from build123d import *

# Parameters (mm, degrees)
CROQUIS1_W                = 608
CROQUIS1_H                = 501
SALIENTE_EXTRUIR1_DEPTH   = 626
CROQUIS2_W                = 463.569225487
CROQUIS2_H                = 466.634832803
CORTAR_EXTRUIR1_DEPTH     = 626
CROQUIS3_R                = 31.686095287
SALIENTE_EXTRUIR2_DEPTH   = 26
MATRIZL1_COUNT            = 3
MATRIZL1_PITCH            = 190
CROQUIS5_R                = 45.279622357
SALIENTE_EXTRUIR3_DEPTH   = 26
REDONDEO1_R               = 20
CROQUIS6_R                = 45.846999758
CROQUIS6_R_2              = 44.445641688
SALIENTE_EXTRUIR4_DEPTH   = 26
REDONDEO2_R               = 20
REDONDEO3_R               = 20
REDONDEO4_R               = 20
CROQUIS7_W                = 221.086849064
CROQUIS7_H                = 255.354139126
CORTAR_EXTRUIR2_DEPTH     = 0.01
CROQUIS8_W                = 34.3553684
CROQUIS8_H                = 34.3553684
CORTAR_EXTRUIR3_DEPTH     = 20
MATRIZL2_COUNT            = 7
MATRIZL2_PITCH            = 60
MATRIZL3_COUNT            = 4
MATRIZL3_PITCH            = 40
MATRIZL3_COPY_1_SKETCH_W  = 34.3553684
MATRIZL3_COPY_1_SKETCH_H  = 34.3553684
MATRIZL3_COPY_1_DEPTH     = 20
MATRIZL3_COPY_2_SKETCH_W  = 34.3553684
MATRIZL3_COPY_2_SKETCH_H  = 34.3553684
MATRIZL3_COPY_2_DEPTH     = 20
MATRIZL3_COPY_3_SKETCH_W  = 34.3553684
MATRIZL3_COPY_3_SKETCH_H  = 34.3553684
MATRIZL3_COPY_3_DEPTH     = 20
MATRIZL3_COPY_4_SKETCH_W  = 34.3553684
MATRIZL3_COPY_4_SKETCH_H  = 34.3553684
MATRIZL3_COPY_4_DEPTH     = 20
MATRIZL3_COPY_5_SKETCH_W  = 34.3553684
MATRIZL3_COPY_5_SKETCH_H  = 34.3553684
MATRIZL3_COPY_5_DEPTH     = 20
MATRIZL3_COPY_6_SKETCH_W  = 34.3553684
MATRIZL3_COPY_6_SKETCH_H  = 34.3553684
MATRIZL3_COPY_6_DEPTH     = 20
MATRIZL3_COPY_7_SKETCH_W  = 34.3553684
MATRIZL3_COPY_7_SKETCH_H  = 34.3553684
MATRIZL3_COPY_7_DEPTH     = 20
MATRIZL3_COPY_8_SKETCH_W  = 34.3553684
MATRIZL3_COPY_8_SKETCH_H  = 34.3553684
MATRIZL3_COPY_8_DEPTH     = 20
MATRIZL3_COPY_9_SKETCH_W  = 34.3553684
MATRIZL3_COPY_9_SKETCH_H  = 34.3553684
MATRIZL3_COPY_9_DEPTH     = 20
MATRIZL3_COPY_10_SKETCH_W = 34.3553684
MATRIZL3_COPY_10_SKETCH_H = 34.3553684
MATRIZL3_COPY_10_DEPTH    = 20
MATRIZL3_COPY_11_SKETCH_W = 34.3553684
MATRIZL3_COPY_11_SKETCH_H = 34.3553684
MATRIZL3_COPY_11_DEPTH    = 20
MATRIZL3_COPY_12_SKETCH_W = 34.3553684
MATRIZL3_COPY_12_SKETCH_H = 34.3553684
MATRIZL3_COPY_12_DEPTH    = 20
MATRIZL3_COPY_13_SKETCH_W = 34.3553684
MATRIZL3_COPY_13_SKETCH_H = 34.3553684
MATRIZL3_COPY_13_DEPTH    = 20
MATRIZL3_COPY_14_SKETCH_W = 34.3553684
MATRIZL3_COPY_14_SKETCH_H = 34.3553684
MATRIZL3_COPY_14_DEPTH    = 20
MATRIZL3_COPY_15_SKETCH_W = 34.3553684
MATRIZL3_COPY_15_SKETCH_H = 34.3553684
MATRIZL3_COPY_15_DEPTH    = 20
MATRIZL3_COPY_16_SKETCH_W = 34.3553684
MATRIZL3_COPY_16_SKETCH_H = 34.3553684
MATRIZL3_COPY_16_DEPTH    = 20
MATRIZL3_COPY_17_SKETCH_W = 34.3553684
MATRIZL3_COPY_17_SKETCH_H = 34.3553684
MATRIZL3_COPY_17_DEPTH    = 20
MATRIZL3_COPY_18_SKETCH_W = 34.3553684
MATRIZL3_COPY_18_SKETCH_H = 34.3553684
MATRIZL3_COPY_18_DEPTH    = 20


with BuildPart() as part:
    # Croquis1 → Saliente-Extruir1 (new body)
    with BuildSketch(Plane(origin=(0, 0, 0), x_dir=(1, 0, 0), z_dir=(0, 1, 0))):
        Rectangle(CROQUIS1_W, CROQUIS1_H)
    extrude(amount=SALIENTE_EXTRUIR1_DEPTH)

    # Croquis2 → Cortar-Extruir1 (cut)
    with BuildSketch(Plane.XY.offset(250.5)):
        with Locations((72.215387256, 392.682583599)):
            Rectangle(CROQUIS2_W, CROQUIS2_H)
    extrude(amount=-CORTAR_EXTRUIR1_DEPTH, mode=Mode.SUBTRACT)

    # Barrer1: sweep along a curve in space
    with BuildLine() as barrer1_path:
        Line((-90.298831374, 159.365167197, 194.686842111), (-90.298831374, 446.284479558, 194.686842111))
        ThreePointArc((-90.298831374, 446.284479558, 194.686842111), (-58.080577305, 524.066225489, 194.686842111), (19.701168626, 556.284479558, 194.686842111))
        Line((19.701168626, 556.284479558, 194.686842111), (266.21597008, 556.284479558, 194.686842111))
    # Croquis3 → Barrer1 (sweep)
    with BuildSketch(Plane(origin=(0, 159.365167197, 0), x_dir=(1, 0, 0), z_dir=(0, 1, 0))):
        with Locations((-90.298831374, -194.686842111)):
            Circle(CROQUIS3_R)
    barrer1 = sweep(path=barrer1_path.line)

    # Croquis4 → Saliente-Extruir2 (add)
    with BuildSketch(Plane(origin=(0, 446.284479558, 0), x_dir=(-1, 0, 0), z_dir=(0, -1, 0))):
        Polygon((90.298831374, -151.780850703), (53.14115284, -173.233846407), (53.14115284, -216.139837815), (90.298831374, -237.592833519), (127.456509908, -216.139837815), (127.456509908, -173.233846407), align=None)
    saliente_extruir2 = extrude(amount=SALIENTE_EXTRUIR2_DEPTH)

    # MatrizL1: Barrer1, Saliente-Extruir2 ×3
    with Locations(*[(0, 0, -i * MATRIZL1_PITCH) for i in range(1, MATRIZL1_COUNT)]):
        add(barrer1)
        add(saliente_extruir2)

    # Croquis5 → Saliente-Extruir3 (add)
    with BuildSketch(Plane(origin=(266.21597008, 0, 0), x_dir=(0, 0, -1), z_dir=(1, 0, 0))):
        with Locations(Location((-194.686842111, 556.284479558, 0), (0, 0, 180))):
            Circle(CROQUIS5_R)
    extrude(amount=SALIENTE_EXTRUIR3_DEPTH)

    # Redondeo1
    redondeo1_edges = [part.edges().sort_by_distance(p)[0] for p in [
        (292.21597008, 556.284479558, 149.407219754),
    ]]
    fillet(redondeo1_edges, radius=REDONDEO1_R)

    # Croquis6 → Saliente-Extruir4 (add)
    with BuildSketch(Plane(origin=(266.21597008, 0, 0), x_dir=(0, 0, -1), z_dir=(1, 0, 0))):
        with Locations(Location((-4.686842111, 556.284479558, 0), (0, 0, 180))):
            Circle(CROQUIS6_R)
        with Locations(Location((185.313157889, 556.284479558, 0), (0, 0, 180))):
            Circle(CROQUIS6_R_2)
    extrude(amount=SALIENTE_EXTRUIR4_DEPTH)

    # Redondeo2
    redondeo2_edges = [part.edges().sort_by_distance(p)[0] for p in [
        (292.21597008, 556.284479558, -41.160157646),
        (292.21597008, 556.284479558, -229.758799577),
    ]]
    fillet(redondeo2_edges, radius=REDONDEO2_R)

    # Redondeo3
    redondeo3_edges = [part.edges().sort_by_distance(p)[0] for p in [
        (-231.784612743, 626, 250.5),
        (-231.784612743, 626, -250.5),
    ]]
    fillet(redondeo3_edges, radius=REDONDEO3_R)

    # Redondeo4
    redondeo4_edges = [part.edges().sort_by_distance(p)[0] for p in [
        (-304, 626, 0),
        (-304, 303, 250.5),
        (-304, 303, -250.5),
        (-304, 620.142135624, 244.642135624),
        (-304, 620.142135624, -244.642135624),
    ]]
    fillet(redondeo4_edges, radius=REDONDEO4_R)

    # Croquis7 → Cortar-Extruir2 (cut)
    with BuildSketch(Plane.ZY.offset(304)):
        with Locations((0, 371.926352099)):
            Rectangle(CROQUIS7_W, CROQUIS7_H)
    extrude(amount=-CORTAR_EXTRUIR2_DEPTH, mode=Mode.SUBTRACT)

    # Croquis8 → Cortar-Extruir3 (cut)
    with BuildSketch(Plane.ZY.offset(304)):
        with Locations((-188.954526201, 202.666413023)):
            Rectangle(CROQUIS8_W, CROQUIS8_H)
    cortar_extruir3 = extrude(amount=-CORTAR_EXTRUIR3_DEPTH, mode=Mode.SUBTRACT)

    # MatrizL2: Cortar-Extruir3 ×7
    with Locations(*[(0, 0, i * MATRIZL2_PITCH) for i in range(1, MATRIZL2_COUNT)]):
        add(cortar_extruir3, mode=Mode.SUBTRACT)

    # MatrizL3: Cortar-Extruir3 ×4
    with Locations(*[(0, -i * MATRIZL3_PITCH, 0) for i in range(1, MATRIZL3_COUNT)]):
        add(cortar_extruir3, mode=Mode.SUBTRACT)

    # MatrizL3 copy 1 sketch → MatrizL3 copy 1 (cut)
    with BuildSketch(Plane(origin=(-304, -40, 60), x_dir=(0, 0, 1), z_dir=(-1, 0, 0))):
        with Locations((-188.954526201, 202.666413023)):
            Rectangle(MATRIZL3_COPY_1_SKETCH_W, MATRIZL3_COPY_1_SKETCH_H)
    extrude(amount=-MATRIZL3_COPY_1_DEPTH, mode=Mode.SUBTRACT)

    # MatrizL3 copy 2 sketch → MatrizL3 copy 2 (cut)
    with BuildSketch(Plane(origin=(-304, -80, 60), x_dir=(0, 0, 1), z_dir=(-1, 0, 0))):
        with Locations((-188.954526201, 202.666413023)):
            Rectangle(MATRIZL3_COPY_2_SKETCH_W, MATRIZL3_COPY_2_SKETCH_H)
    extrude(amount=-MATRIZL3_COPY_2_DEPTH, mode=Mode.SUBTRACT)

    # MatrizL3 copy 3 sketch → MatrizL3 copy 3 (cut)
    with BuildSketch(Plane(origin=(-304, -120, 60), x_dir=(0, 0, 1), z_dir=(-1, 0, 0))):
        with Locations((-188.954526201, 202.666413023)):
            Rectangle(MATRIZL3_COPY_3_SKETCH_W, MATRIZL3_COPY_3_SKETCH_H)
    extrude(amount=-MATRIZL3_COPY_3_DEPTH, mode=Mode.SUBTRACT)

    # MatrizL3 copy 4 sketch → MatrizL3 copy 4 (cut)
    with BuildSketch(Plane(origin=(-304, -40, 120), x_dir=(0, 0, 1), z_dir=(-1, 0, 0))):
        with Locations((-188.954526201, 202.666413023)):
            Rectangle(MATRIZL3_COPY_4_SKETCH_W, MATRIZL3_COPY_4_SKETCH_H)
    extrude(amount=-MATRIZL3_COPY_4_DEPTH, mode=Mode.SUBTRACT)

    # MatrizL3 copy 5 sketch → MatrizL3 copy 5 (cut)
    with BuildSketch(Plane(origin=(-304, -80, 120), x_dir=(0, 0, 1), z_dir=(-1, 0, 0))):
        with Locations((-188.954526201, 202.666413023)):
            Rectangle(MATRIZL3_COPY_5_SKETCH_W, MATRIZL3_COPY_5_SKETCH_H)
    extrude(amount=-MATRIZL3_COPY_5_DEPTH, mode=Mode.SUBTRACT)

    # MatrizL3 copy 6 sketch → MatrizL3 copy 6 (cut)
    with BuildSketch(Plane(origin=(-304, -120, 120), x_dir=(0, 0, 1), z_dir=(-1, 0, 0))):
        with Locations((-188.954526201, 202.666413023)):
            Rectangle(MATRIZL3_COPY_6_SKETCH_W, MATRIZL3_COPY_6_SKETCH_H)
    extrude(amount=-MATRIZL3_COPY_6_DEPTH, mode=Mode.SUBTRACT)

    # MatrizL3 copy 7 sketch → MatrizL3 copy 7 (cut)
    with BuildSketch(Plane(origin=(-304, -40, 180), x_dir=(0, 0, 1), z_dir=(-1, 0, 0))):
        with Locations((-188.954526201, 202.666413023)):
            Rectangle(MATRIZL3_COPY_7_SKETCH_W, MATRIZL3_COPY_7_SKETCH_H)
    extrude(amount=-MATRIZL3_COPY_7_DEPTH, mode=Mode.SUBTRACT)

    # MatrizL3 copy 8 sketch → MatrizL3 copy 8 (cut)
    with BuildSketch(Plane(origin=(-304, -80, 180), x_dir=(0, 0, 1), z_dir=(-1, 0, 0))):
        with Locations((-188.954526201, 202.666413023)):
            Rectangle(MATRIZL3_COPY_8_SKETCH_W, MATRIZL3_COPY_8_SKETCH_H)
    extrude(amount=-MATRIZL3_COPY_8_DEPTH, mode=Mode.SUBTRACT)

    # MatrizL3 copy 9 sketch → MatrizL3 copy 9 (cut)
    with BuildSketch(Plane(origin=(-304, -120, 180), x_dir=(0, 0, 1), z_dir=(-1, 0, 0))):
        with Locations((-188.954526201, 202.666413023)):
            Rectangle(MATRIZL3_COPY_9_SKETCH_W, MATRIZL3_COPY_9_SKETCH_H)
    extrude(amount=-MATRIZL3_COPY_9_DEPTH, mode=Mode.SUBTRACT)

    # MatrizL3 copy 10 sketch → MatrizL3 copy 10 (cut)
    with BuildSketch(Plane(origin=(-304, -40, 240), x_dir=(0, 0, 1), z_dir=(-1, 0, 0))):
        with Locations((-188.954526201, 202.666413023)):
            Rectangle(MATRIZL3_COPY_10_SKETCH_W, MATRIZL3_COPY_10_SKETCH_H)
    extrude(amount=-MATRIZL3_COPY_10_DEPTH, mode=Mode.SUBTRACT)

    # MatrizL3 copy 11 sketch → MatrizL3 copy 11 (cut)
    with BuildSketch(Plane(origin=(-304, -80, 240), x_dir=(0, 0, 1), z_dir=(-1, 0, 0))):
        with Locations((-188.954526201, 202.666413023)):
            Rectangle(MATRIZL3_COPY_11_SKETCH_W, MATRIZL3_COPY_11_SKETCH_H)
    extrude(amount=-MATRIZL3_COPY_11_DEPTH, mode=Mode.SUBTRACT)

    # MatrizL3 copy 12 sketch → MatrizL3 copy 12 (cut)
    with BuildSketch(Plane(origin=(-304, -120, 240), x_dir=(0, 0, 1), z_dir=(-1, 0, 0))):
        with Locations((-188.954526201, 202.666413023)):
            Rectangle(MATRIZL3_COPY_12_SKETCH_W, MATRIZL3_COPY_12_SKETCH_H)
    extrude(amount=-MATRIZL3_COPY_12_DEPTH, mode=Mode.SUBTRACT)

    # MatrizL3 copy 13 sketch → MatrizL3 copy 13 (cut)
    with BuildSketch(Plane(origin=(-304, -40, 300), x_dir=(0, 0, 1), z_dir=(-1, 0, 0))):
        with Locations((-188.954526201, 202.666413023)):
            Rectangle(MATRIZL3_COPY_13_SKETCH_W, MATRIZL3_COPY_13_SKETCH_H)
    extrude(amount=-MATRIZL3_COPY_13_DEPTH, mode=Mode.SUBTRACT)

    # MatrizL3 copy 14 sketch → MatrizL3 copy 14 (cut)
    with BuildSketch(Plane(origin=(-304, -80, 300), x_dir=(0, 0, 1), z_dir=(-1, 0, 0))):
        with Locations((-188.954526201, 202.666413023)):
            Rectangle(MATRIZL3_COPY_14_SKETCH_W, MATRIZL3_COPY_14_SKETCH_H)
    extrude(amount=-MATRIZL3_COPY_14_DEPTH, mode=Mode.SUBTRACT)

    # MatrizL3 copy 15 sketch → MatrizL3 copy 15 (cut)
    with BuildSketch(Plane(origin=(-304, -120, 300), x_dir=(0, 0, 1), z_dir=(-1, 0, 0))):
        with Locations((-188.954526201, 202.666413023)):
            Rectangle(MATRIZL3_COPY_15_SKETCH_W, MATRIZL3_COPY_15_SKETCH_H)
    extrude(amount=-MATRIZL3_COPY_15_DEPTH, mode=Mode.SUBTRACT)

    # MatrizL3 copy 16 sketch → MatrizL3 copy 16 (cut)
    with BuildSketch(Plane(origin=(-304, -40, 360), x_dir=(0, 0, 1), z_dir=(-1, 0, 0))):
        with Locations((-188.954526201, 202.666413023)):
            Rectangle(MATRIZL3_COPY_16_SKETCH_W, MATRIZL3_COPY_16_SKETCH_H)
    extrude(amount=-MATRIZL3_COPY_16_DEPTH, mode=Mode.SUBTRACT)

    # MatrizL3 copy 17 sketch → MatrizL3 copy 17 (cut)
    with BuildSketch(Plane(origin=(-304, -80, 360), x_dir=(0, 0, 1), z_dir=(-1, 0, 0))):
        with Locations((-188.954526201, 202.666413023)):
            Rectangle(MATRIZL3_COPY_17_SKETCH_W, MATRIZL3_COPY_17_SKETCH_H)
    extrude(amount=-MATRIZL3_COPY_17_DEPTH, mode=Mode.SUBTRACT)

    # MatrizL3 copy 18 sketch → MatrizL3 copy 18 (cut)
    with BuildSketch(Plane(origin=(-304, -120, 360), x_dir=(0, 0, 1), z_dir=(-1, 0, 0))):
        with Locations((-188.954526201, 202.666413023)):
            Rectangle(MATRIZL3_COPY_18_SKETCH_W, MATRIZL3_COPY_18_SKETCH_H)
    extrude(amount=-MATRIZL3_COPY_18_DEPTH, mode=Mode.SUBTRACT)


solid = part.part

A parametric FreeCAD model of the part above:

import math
import FreeCAD as App
import Part
import Sketcher
from FreeCAD import Vector
Q = App.Units.Quantity


def edges_at(feature, points):
    """Names of the edges that pass closest to the given points."""
    edges = feature.Shape.Edges
    near = lambda p: min(range(len(edges)), key=lambda i: edges[i].distToShape(Part.Vertex(*p))[0])
    return sorted({f"Edge{near(p) + 1}" for p in points})


def add_polygon(sketch, points):
    """Adds a closed chain of lines whose ends are joined by coincident constraints."""
    first, n = sketch.GeometryCount, len(points)
    for a, b in zip(points, points[1:] + points[:1]):
        sketch.addGeometry(Part.LineSegment(App.Vector(*a, 0), App.Vector(*b, 0)), False)
    for i in range(n):
        sketch.addConstraint(Sketcher.Constraint("Coincident", first + i, 2, first + (i + 1) % n, 1))

doc = App.newDocument("Part")
body = doc.addObject("PartDesign::Body", "Body")

# Sketch on XZ plane
sketch1 = body.newObject("Sketcher::SketchObject", "Sketch")
sketch1.AttachmentSupport = (doc.getObject("XZ_Plane"), [""])
sketch1.MapMode = "FlatFace"
add_polygon(sketch1, [(-304, -250), (-304, 250), (304, 250), (304, -250)])  # lines 0-3
sketch1.addConstraint([
    Sketcher.Constraint("Vertical", 0),
    Sketcher.Constraint("Horizontal", 1),
    Sketcher.Constraint("Vertical", 2),
    Sketcher.Constraint("Horizontal", 3),
    Sketcher.Constraint("Symmetric", 0, 2, 2, 2, -1, 1),
    Sketcher.Constraint("DistanceX", 1, 1, 1, 2, 608.0),
    Sketcher.Constraint("DistanceY", 0, 1, 0, 2, 501.0),
])
pad1 = body.newObject("PartDesign::Pad", "Pad")
pad1.Profile = sketch1
pad1.Length = 626
pad1.Reversed = True

# Sketch on XY plane
sketch2 = body.newObject("Sketcher::SketchObject", "Sketch001")
sketch2.AttachmentSupport = (doc.getObject("XY_Plane"), [""])
sketch2.MapMode = "FlatFace"
sketch2.AttachmentOffset = App.Placement(Vector(0, 0, 250.5), App.Rotation())
add_polygon(sketch2, [(-160, 626), (-160, 159), (304, 159), (304, 626)])  # lines 0-3
sketch2.addConstraint([
    Sketcher.Constraint("Vertical", 0),
    Sketcher.Constraint("Horizontal", 1),
    Sketcher.Constraint("Vertical", 2),
    Sketcher.Constraint("Horizontal", 3),
    Sketcher.Constraint("DistanceX", -1, 1, 1, 2, 304.0),
    Sketcher.Constraint("DistanceY", -1, 1, 2, 2, 626.0),
    Sketcher.Constraint("DistanceX", 1, 1, 1, 2, 463.569225),
    Sketcher.Constraint("DistanceY", 0, 2, 0, 1, 466.634833),
])
pocket1 = body.newObject("PartDesign::Pocket", "Pocket")
pocket1.Profile = sketch2
pocket1.Length = 626

# Sketch on XZ plane
sketch3 = body.newObject("Sketcher::SketchObject", "Sketch002")
sketch3.AttachmentSupport = (doc.getObject("XZ_Plane"), [""])
sketch3.MapMode = "FlatFace"
sketch3.AttachmentOffset = App.Placement(Vector(0, 0, -159.365167), App.Rotation())
sketch3.addGeometry(Part.Circle(Vector(-90, 195, 0), Vector(0, 0, 1), 32), False)
sketch3.addConstraint([
    Sketcher.Constraint("Diameter", 0, 63.372191),
    Sketcher.Constraint("DistanceX", 0, 3, -1, 1, 90.298831),
    Sketcher.Constraint("DistanceY", -1, 1, 0, 3, 194.686842),
])

# Sketch on XY plane
sketch4 = body.newObject("Sketcher::SketchObject", "Sketch003")
sketch4.AttachmentSupport = (doc.getObject("XY_Plane"), [""])
sketch4.MapMode = "FlatFace"
sketch4.AttachmentOffset = App.Placement(Vector(0, 0, 194.686842), App.Rotation())
sketch4.addGeometry([
    Part.LineSegment(Vector(-90, 159, 0), Vector(-90, 446, 0)),
    Part.ArcOfCircle(Part.Circle(Vector(20, 446, 0), Vector(0, 0, 1), 110), math.radians(90), math.radians(180)),
    Part.LineSegment(Vector(20, 556, 0), Vector(266, 556, 0)),
], False)
sketch4.addConstraint([
    Sketcher.Constraint("Tangent", 0, 2, 1, 2),
    Sketcher.Constraint("Tangent", 1, 1, 2, 1),
    Sketcher.Constraint("Vertical", 0),
    Sketcher.Constraint("Horizontal", 2),
    Sketcher.Constraint("Radius", 1, 110.0),
    Sketcher.Constraint("DistanceX", 2, 1, 2, 2, 246.514801),
    Sketcher.Constraint("DistanceY", 0, 1, 0, 2, 286.919312),
    Sketcher.Constraint("DistanceX", -1, 1, 1, 3, 19.701169),
    Sketcher.Constraint("DistanceY", -1, 1, 1, 3, 446.28448),
])
doc.recompute()

additivepipe = body.newObject("PartDesign::AdditivePipe", "AdditivePipe")
additivepipe.Profile = sketch3
additivepipe.Spine = (sketch4, ["Edge1", "Edge2", "Edge3"])

# Sketch on XZ plane
sketch5 = body.newObject("Sketcher::SketchObject", "Sketch004")
sketch5.AttachmentSupport = (doc.getObject("XZ_Plane"), [""])
sketch5.MapMode = "FlatFace"
sketch5.AttachmentOffset = App.Placement(Vector(0, 0, -446.28448), App.Rotation())
add_polygon(sketch5, [(-90, 152), (-53, 173), (-53, 216), (-90, 238), (-127, 216), (-127, 173)])  # lines 0-5
sketch5.addConstraint([
    Sketcher.Constraint("Vertical", 1),
    Sketcher.Constraint("Vertical", 4),
    Sketcher.Constraint("Parallel", 0, 3),
    Sketcher.Constraint("Parallel", 2, 5),
    Sketcher.Constraint("Horizontal", 1, 2, 3, 2),
    Sketcher.Constraint("Horizontal", 0, 2, 4, 2),
    Sketcher.Constraint("Vertical", 2, 2, 5, 2),
    Sketcher.Constraint("Angle", 0, Q("30 deg")),
    Sketcher.Constraint("DistanceY", 1, 1, 1, 2, 42.905991),
    Sketcher.Constraint("Distance", 0, 42.905991),
    Sketcher.Constraint("DistanceX", 2, 2, -1, 1, 90.298831),
    Sketcher.Constraint("DistanceY", -1, 1, 5, 2, 151.780851),
])
pad2 = body.newObject("PartDesign::Pad", "Pad001")
pad2.Profile = sketch5
pad2.Length = 26
doc.recompute()

linearpattern = body.newObject("PartDesign::LinearPattern", "LinearPattern")
linearpattern.Originals = [additivepipe, pad2]
linearpattern.Direction = (doc.getObject("Z_Axis"), [""])
linearpattern.Mode = "offset"
linearpattern.Offset = 190
linearpattern.Occurrences = 3
linearpattern.Reversed = True
body.Tip = linearpattern

# Sketch on YZ plane
sketch6 = body.newObject("Sketcher::SketchObject", "Sketch005")
sketch6.AttachmentSupport = (doc.getObject("YZ_Plane"), [""])
sketch6.MapMode = "FlatFace"
sketch6.AttachmentOffset = App.Placement(Vector(0, 0, 266.21597), App.Rotation())
sketch6.addGeometry(Part.Circle(Vector(556, 195, 0), Vector(0, 0, 1), 45), False)
sketch6.addConstraint([
    Sketcher.Constraint("Diameter", 0, 90.559245),
    Sketcher.Constraint("DistanceX", -1, 1, 0, 3, 556.28448),
    Sketcher.Constraint("DistanceY", -1, 1, 0, 3, 194.686842),
])
pad3 = body.newObject("PartDesign::Pad", "Pad002")
pad3.Profile = sketch6
pad3.Length = 26
doc.recompute()

fillet = body.newObject("PartDesign::Fillet", "Fillet")
fillet.Base = (pad3, edges_at(pad3, [(292.216, 556.284, 149.407)]))
fillet.Radius = 20

# Sketch on YZ plane
sketch7 = body.newObject("Sketcher::SketchObject", "Sketch006")
sketch7.AttachmentSupport = (doc.getObject("YZ_Plane"), [""])
sketch7.MapMode = "FlatFace"
sketch7.AttachmentOffset = App.Placement(Vector(0, 0, 266.21597), App.Rotation())
sketch7.addGeometry([
    Part.Circle(Vector(556, 5, 0), Vector(0, 0, 1), 46),
    Part.Circle(Vector(556, -185, 0), Vector(0, 0, 1), 44),
], False)
sketch7.addConstraint([
    Sketcher.Constraint("Vertical", 0, 3, 1, 3),
    Sketcher.Constraint("Diameter", 0, 91.694),
    Sketcher.Constraint("DistanceY", 1, 3, 0, 3, 190.0),
    Sketcher.Constraint("Diameter", 1, 88.891283),
    Sketcher.Constraint("DistanceX", -1, 1, 0, 3, 556.28448),
    Sketcher.Constraint("DistanceY", -1, 1, 0, 3, 4.686842),
])
pad4 = body.newObject("PartDesign::Pad", "Pad003")
pad4.Profile = sketch7
pad4.Length = 26
doc.recompute()

fillet2 = body.newObject("PartDesign::Fillet", "Fillet001")
fillet2.Base = (pad4, edges_at(pad4, [(292.216, 556.284, -41.16), (292.216, 556.284, -229.759)]))
fillet2.Radius = 20
doc.recompute()

fillet3 = body.newObject("PartDesign::Fillet", "Fillet002")
fillet3.Base = (fillet2, edges_at(fillet2, [(-231.785, 626, 250.5), (-231.785, 626, -250.5)]))
fillet3.Radius = 20
doc.recompute()

fillet4 = body.newObject("PartDesign::Fillet", "Fillet003")
fillet4.Base = (fillet3, edges_at(fillet3, [
    (-304, 626, 0),
    (-304, 303, 250.5),
    (-304, 303, -250.5),
    (-304, 620.142, 244.642),
    (-304, 620.142, -244.642),
]))
fillet4.Radius = 20

# Sketch on YZ plane
sketch8 = body.newObject("Sketcher::SketchObject", "Sketch007")
sketch8.AttachmentSupport = (doc.getObject("YZ_Plane"), [""])
sketch8.MapMode = "FlatFace"
sketch8.AttachmentOffset = App.Placement(Vector(0, 0, -304), App.Rotation())
add_polygon(sketch8, [(500, -111), (244, -111), (244, 111), (500, 111)])  # lines 0-3
sketch8.addConstraint([
    Sketcher.Constraint("Horizontal", 0),
    Sketcher.Constraint("Vertical", 1),
    Sketcher.Constraint("Horizontal", 2),
    Sketcher.Constraint("Vertical", 3),
    Sketcher.Constraint("DistanceX", 0, 2, 0, 1, 255.354139),
    Sketcher.Constraint("DistanceY", 1, 1, 1, 2, 221.086849),
    Sketcher.Constraint("DistanceX", -1, 1, 2, 2, 499.603422),
    Sketcher.Constraint("DistanceY", 0, 2, -1, 1, 110.543425),
])
pocket2 = body.newObject("PartDesign::Pocket", "Pocket001")
pocket2.Profile = sketch8
pocket2.Length = 0.01
pocket2.Reversed = True

# Sketch on YZ plane
sketch9 = body.newObject("Sketcher::SketchObject", "Sketch008")
sketch9.AttachmentSupport = (doc.getObject("YZ_Plane"), [""])
sketch9.MapMode = "FlatFace"
sketch9.AttachmentOffset = App.Placement(Vector(0, 0, -304), App.Rotation())
add_polygon(sketch9, [(220, -206), (185, -206), (185, -172), (220, -172)])  # lines 0-3
sketch9.addConstraint([
    Sketcher.Constraint("Horizontal", 0),
    Sketcher.Constraint("Vertical", 1),
    Sketcher.Constraint("Horizontal", 2),
    Sketcher.Constraint("Vertical", 3),
    Sketcher.Constraint("Equal", 2, 1),
    Sketcher.Constraint("DistanceX", 0, 2, 0, 1, 34.355368),
    Sketcher.Constraint("DistanceX", -1, 1, 0, 2, 185.488729),
    Sketcher.Constraint("DistanceY", 0, 2, -1, 1, 206.13221),
])
pocket3 = body.newObject("PartDesign::Pocket", "Pocket002")
pocket3.Profile = sketch9
pocket3.Length = 20
pocket3.Reversed = True
doc.recompute()

linearpattern2 = body.newObject("PartDesign::LinearPattern", "LinearPattern001")
linearpattern2.Originals = [pocket3]
linearpattern2.Direction = (doc.getObject("Z_Axis"), [""])
linearpattern2.Mode = "offset"
linearpattern2.Offset = 60
linearpattern2.Occurrences = 7
body.Tip = linearpattern2
doc.recompute()

linearpattern3 = body.newObject("PartDesign::LinearPattern", "LinearPattern002")
linearpattern3.Originals = [pocket3]
linearpattern3.Direction = (doc.getObject("Y_Axis"), [""])
linearpattern3.Mode = "offset"
linearpattern3.Offset = 40
linearpattern3.Occurrences = 4
linearpattern3.Reversed = True
body.Tip = linearpattern3

# Sketch on YZ plane
sketch10 = body.newObject("Sketcher::SketchObject", "Sketch009")
sketch10.AttachmentSupport = (doc.getObject("YZ_Plane"), [""])
sketch10.MapMode = "FlatFace"
sketch10.AttachmentOffset = App.Placement(Vector(0, 0, -304), App.Rotation())
add_polygon(sketch10, [(180, -146), (145, -146), (145, -112), (180, -112)])  # lines 0-3
sketch10.addConstraint([
    Sketcher.Constraint("Horizontal", 0),
    Sketcher.Constraint("Vertical", 1),
    Sketcher.Constraint("Horizontal", 2),
    Sketcher.Constraint("Vertical", 3),
    Sketcher.Constraint("Equal", 2, 1),
    Sketcher.Constraint("DistanceX", 0, 2, 0, 1, 34.355368),
    Sketcher.Constraint("DistanceX", -1, 1, 0, 2, 145.488729),
    Sketcher.Constraint("DistanceY", 0, 2, -1, 1, 146.13221),
])
pocket4 = body.newObject("PartDesign::Pocket", "Pocket003")
pocket4.Profile = sketch10
pocket4.Length = 20
pocket4.Reversed = True

# Sketch on YZ plane
sketch11 = body.newObject("Sketcher::SketchObject", "Sketch010")
sketch11.AttachmentSupport = (doc.getObject("YZ_Plane"), [""])
sketch11.MapMode = "FlatFace"
sketch11.AttachmentOffset = App.Placement(Vector(0, 0, -304), App.Rotation())
add_polygon(sketch11, [(140, -146), (105, -146), (105, -112), (140, -112)])  # lines 0-3
sketch11.addConstraint([
    Sketcher.Constraint("Horizontal", 0),
    Sketcher.Constraint("Vertical", 1),
    Sketcher.Constraint("Horizontal", 2),
    Sketcher.Constraint("Vertical", 3),
    Sketcher.Constraint("Equal", 2, 1),
    Sketcher.Constraint("DistanceX", 0, 2, 0, 1, 34.355368),
    Sketcher.Constraint("DistanceX", -1, 1, 0, 2, 105.488729),
    Sketcher.Constraint("DistanceY", 0, 2, -1, 1, 146.13221),
])
pocket5 = body.newObject("PartDesign::Pocket", "Pocket004")
pocket5.Profile = sketch11
pocket5.Length = 20
pocket5.Reversed = True

# Sketch on YZ plane
sketch12 = body.newObject("Sketcher::SketchObject", "Sketch011")
sketch12.AttachmentSupport = (doc.getObject("YZ_Plane"), [""])
sketch12.MapMode = "FlatFace"
sketch12.AttachmentOffset = App.Placement(Vector(0, 0, -304), App.Rotation())
add_polygon(sketch12, [(100, -146), (65, -146), (65, -112), (100, -112)])  # lines 0-3
sketch12.addConstraint([
    Sketcher.Constraint("Horizontal", 0),
    Sketcher.Constraint("Vertical", 1),
    Sketcher.Constraint("Horizontal", 2),
    Sketcher.Constraint("Vertical", 3),
    Sketcher.Constraint("Equal", 2, 1),
    Sketcher.Constraint("DistanceX", 0, 2, 0, 1, 34.355368),
    Sketcher.Constraint("DistanceX", -1, 1, 0, 2, 65.488729),
    Sketcher.Constraint("DistanceY", 0, 2, -1, 1, 146.13221),
])
pocket6 = body.newObject("PartDesign::Pocket", "Pocket005")
pocket6.Profile = sketch12
pocket6.Length = 20
pocket6.Reversed = True

# Sketch on YZ plane
sketch13 = body.newObject("Sketcher::SketchObject", "Sketch012")
sketch13.AttachmentSupport = (doc.getObject("YZ_Plane"), [""])
sketch13.MapMode = "FlatFace"
sketch13.AttachmentOffset = App.Placement(Vector(0, 0, -304), App.Rotation())
add_polygon(sketch13, [(180, -86), (145, -86), (145, -52), (180, -52)])  # lines 0-3
sketch13.addConstraint([
    Sketcher.Constraint("Horizontal", 0),
    Sketcher.Constraint("Vertical", 1),
    Sketcher.Constraint("Horizontal", 2),
    Sketcher.Constraint("Vertical", 3),
    Sketcher.Constraint("Equal", 2, 1),
    Sketcher.Constraint("DistanceX", 0, 2, 0, 1, 34.355368),
    Sketcher.Constraint("DistanceX", -1, 1, 0, 2, 145.488729),
    Sketcher.Constraint("DistanceY", 0, 2, -1, 1, 86.13221),
])
pocket7 = body.newObject("PartDesign::Pocket", "Pocket006")
pocket7.Profile = sketch13
pocket7.Length = 20
pocket7.Reversed = True

# Sketch on YZ plane
sketch14 = body.newObject("Sketcher::SketchObject", "Sketch013")
sketch14.AttachmentSupport = (doc.getObject("YZ_Plane"), [""])
sketch14.MapMode = "FlatFace"
sketch14.AttachmentOffset = App.Placement(Vector(0, 0, -304), App.Rotation())
add_polygon(sketch14, [(140, -86), (105, -86), (105, -52), (140, -52)])  # lines 0-3
sketch14.addConstraint([
    Sketcher.Constraint("Horizontal", 0),
    Sketcher.Constraint("Vertical", 1),
    Sketcher.Constraint("Horizontal", 2),
    Sketcher.Constraint("Vertical", 3),
    Sketcher.Constraint("Equal", 2, 1),
    Sketcher.Constraint("DistanceX", 0, 2, 0, 1, 34.355368),
    Sketcher.Constraint("DistanceX", -1, 1, 0, 2, 105.488729),
    Sketcher.Constraint("DistanceY", 0, 2, -1, 1, 86.13221),
])
pocket8 = body.newObject("PartDesign::Pocket", "Pocket007")
pocket8.Profile = sketch14
pocket8.Length = 20
pocket8.Reversed = True

# Sketch on YZ plane
sketch15 = body.newObject("Sketcher::SketchObject", "Sketch014")
sketch15.AttachmentSupport = (doc.getObject("YZ_Plane"), [""])
sketch15.MapMode = "FlatFace"
sketch15.AttachmentOffset = App.Placement(Vector(0, 0, -304), App.Rotation())
add_polygon(sketch15, [(100, -86), (65, -86), (65, -52), (100, -52)])  # lines 0-3
sketch15.addConstraint([
    Sketcher.Constraint("Horizontal", 0),
    Sketcher.Constraint("Vertical", 1),
    Sketcher.Constraint("Horizontal", 2),
    Sketcher.Constraint("Vertical", 3),
    Sketcher.Constraint("Equal", 2, 1),
    Sketcher.Constraint("DistanceX", 0, 2, 0, 1, 34.355368),
    Sketcher.Constraint("DistanceX", -1, 1, 0, 2, 65.488729),
    Sketcher.Constraint("DistanceY", 0, 2, -1, 1, 86.13221),
])
pocket9 = body.newObject("PartDesign::Pocket", "Pocket008")
pocket9.Profile = sketch15
pocket9.Length = 20
pocket9.Reversed = True

# Sketch on YZ plane
sketch16 = body.newObject("Sketcher::SketchObject", "Sketch015")
sketch16.AttachmentSupport = (doc.getObject("YZ_Plane"), [""])
sketch16.MapMode = "FlatFace"
sketch16.AttachmentOffset = App.Placement(Vector(0, 0, -304), App.Rotation())
add_polygon(sketch16, [(180, -26), (145, -26), (145, 8), (180, 8)])  # lines 0-3
sketch16.addConstraint([
    Sketcher.Constraint("Horizontal", 0),
    Sketcher.Constraint("Vertical", 1),
    Sketcher.Constraint("Horizontal", 2),
    Sketcher.Constraint("Vertical", 3),
    Sketcher.Constraint("Equal", 2, 1),
    Sketcher.Constraint("DistanceX", 0, 2, 0, 1, 34.355368),
    Sketcher.Constraint("DistanceX", -1, 1, 0, 2, 145.488729),
    Sketcher.Constraint("DistanceY", 0, 2, -1, 1, 26.13221),
])
pocket10 = body.newObject("PartDesign::Pocket", "Pocket009")
pocket10.Profile = sketch16
pocket10.Length = 20
pocket10.Reversed = True

# Sketch on YZ plane
sketch17 = body.newObject("Sketcher::SketchObject", "Sketch016")
sketch17.AttachmentSupport = (doc.getObject("YZ_Plane"), [""])
sketch17.MapMode = "FlatFace"
sketch17.AttachmentOffset = App.Placement(Vector(0, 0, -304), App.Rotation())
add_polygon(sketch17, [(140, -26), (105, -26), (105, 8), (140, 8)])  # lines 0-3
sketch17.addConstraint([
    Sketcher.Constraint("Horizontal", 0),
    Sketcher.Constraint("Vertical", 1),
    Sketcher.Constraint("Horizontal", 2),
    Sketcher.Constraint("Vertical", 3),
    Sketcher.Constraint("Equal", 2, 1),
    Sketcher.Constraint("DistanceX", 0, 2, 0, 1, 34.355368),
    Sketcher.Constraint("DistanceX", -1, 1, 0, 2, 105.488729),
    Sketcher.Constraint("DistanceY", 0, 2, -1, 1, 26.13221),
])
pocket11 = body.newObject("PartDesign::Pocket", "Pocket010")
pocket11.Profile = sketch17
pocket11.Length = 20
pocket11.Reversed = True

# Sketch on YZ plane
sketch18 = body.newObject("Sketcher::SketchObject", "Sketch017")
sketch18.AttachmentSupport = (doc.getObject("YZ_Plane"), [""])
sketch18.MapMode = "FlatFace"
sketch18.AttachmentOffset = App.Placement(Vector(0, 0, -304), App.Rotation())
add_polygon(sketch18, [(100, -26), (65, -26), (65, 8), (100, 8)])  # lines 0-3
sketch18.addConstraint([
    Sketcher.Constraint("Horizontal", 0),
    Sketcher.Constraint("Vertical", 1),
    Sketcher.Constraint("Horizontal", 2),
    Sketcher.Constraint("Vertical", 3),
    Sketcher.Constraint("Equal", 2, 1),
    Sketcher.Constraint("DistanceX", 0, 2, 0, 1, 34.355368),
    Sketcher.Constraint("DistanceX", -1, 1, 0, 2, 65.488729),
    Sketcher.Constraint("DistanceY", 0, 2, -1, 1, 26.13221),
])
pocket12 = body.newObject("PartDesign::Pocket", "Pocket011")
pocket12.Profile = sketch18
pocket12.Length = 20
pocket12.Reversed = True

# Sketch on YZ plane
sketch19 = body.newObject("Sketcher::SketchObject", "Sketch018")
sketch19.AttachmentSupport = (doc.getObject("YZ_Plane"), [""])
sketch19.MapMode = "FlatFace"
sketch19.AttachmentOffset = App.Placement(Vector(0, 0, -304), App.Rotation())
add_polygon(sketch19, [(180, 34), (145, 34), (145, 68), (180, 68)])  # lines 0-3
sketch19.addConstraint([
    Sketcher.Constraint("Horizontal", 0),
    Sketcher.Constraint("Vertical", 1),
    Sketcher.Constraint("Horizontal", 2),
    Sketcher.Constraint("Vertical", 3),
    Sketcher.Constraint("Equal", 2, 1),
    Sketcher.Constraint("DistanceX", 0, 2, 0, 1, 34.355368),
    Sketcher.Constraint("DistanceX", -1, 1, 0, 2, 145.488729),
    Sketcher.Constraint("DistanceY", -1, 1, 0, 2, 33.86779),
])
pocket13 = body.newObject("PartDesign::Pocket", "Pocket012")
pocket13.Profile = sketch19
pocket13.Length = 20
pocket13.Reversed = True

# Sketch on YZ plane
sketch20 = body.newObject("Sketcher::SketchObject", "Sketch019")
sketch20.AttachmentSupport = (doc.getObject("YZ_Plane"), [""])
sketch20.MapMode = "FlatFace"
sketch20.AttachmentOffset = App.Placement(Vector(0, 0, -304), App.Rotation())
add_polygon(sketch20, [(140, 34), (105, 34), (105, 68), (140, 68)])  # lines 0-3
sketch20.addConstraint([
    Sketcher.Constraint("Horizontal", 0),
    Sketcher.Constraint("Vertical", 1),
    Sketcher.Constraint("Horizontal", 2),
    Sketcher.Constraint("Vertical", 3),
    Sketcher.Constraint("Equal", 2, 1),
    Sketcher.Constraint("DistanceX", 0, 2, 0, 1, 34.355368),
    Sketcher.Constraint("DistanceX", -1, 1, 0, 2, 105.488729),
    Sketcher.Constraint("DistanceY", -1, 1, 0, 2, 33.86779),
])
pocket14 = body.newObject("PartDesign::Pocket", "Pocket013")
pocket14.Profile = sketch20
pocket14.Length = 20
pocket14.Reversed = True

# Sketch on YZ plane
sketch21 = body.newObject("Sketcher::SketchObject", "Sketch020")
sketch21.AttachmentSupport = (doc.getObject("YZ_Plane"), [""])
sketch21.MapMode = "FlatFace"
sketch21.AttachmentOffset = App.Placement(Vector(0, 0, -304), App.Rotation())
add_polygon(sketch21, [(100, 34), (65, 34), (65, 68), (100, 68)])  # lines 0-3
sketch21.addConstraint([
    Sketcher.Constraint("Horizontal", 0),
    Sketcher.Constraint("Vertical", 1),
    Sketcher.Constraint("Horizontal", 2),
    Sketcher.Constraint("Vertical", 3),
    Sketcher.Constraint("Equal", 2, 1),
    Sketcher.Constraint("DistanceX", 0, 2, 0, 1, 34.355368),
    Sketcher.Constraint("DistanceX", -1, 1, 0, 2, 65.488729),
    Sketcher.Constraint("DistanceY", -1, 1, 0, 2, 33.86779),
])
pocket15 = body.newObject("PartDesign::Pocket", "Pocket014")
pocket15.Profile = sketch21
pocket15.Length = 20
pocket15.Reversed = True

# Sketch on YZ plane
sketch22 = body.newObject("Sketcher::SketchObject", "Sketch021")
sketch22.AttachmentSupport = (doc.getObject("YZ_Plane"), [""])
sketch22.MapMode = "FlatFace"
sketch22.AttachmentOffset = App.Placement(Vector(0, 0, -304), App.Rotation())
add_polygon(sketch22, [(180, 94), (145, 94), (145, 128), (180, 128)])  # lines 0-3
sketch22.addConstraint([
    Sketcher.Constraint("Horizontal", 0),
    Sketcher.Constraint("Vertical", 1),
    Sketcher.Constraint("Horizontal", 2),
    Sketcher.Constraint("Vertical", 3),
    Sketcher.Constraint("Equal", 2, 1),
    Sketcher.Constraint("DistanceX", 0, 2, 0, 1, 34.355368),
    Sketcher.Constraint("DistanceX", -1, 1, 0, 2, 145.488729),
    Sketcher.Constraint("DistanceY", -1, 1, 0, 2, 93.86779),
])
pocket16 = body.newObject("PartDesign::Pocket", "Pocket015")
pocket16.Profile = sketch22
pocket16.Length = 20
pocket16.Reversed = True

# Sketch on YZ plane
sketch23 = body.newObject("Sketcher::SketchObject", "Sketch022")
sketch23.AttachmentSupport = (doc.getObject("YZ_Plane"), [""])
sketch23.MapMode = "FlatFace"
sketch23.AttachmentOffset = App.Placement(Vector(0, 0, -304), App.Rotation())
add_polygon(sketch23, [(140, 94), (105, 94), (105, 128), (140, 128)])  # lines 0-3
sketch23.addConstraint([
    Sketcher.Constraint("Horizontal", 0),
    Sketcher.Constraint("Vertical", 1),
    Sketcher.Constraint("Horizontal", 2),
    Sketcher.Constraint("Vertical", 3),
    Sketcher.Constraint("Equal", 2, 1),
    Sketcher.Constraint("DistanceX", 0, 2, 0, 1, 34.355368),
    Sketcher.Constraint("DistanceX", -1, 1, 0, 2, 105.488729),
    Sketcher.Constraint("DistanceY", -1, 1, 0, 2, 93.86779),
])
pocket17 = body.newObject("PartDesign::Pocket", "Pocket016")
pocket17.Profile = sketch23
pocket17.Length = 20
pocket17.Reversed = True

# Sketch on YZ plane
sketch24 = body.newObject("Sketcher::SketchObject", "Sketch023")
sketch24.AttachmentSupport = (doc.getObject("YZ_Plane"), [""])
sketch24.MapMode = "FlatFace"
sketch24.AttachmentOffset = App.Placement(Vector(0, 0, -304), App.Rotation())
add_polygon(sketch24, [(100, 94), (65, 94), (65, 128), (100, 128)])  # lines 0-3
sketch24.addConstraint([
    Sketcher.Constraint("Horizontal", 0),
    Sketcher.Constraint("Vertical", 1),
    Sketcher.Constraint("Horizontal", 2),
    Sketcher.Constraint("Vertical", 3),
    Sketcher.Constraint("Equal", 2, 1),
    Sketcher.Constraint("DistanceX", 0, 2, 0, 1, 34.355368),
    Sketcher.Constraint("DistanceX", -1, 1, 0, 2, 65.488729),
    Sketcher.Constraint("DistanceY", -1, 1, 0, 2, 93.86779),
])
pocket18 = body.newObject("PartDesign::Pocket", "Pocket017")
pocket18.Profile = sketch24
pocket18.Length = 20
pocket18.Reversed = True

# Sketch on YZ plane
sketch25 = body.newObject("Sketcher::SketchObject", "Sketch024")
sketch25.AttachmentSupport = (doc.getObject("YZ_Plane"), [""])
sketch25.MapMode = "FlatFace"
sketch25.AttachmentOffset = App.Placement(Vector(0, 0, -304), App.Rotation())
add_polygon(sketch25, [(180, 154), (145, 154), (145, 188), (180, 188)])  # lines 0-3
sketch25.addConstraint([
    Sketcher.Constraint("Horizontal", 0),
    Sketcher.Constraint("Vertical", 1),
    Sketcher.Constraint("Horizontal", 2),
    Sketcher.Constraint("Vertical", 3),
    Sketcher.Constraint("Equal", 2, 1),
    Sketcher.Constraint("DistanceX", 0, 2, 0, 1, 34.355368),
    Sketcher.Constraint("DistanceX", -1, 1, 0, 2, 145.488729),
    Sketcher.Constraint("DistanceY", -1, 1, 0, 2, 153.86779),
])
pocket19 = body.newObject("PartDesign::Pocket", "Pocket018")
pocket19.Profile = sketch25
pocket19.Length = 20
pocket19.Reversed = True

# Sketch on YZ plane
sketch26 = body.newObject("Sketcher::SketchObject", "Sketch025")
sketch26.AttachmentSupport = (doc.getObject("YZ_Plane"), [""])
sketch26.MapMode = "FlatFace"
sketch26.AttachmentOffset = App.Placement(Vector(0, 0, -304), App.Rotation())
add_polygon(sketch26, [(140, 154), (105, 154), (105, 188), (140, 188)])  # lines 0-3
sketch26.addConstraint([
    Sketcher.Constraint("Horizontal", 0),
    Sketcher.Constraint("Vertical", 1),
    Sketcher.Constraint("Horizontal", 2),
    Sketcher.Constraint("Vertical", 3),
    Sketcher.Constraint("Equal", 2, 1),
    Sketcher.Constraint("DistanceX", 0, 2, 0, 1, 34.355368),
    Sketcher.Constraint("DistanceX", -1, 1, 0, 2, 105.488729),
    Sketcher.Constraint("DistanceY", -1, 1, 0, 2, 153.86779),
])
pocket20 = body.newObject("PartDesign::Pocket", "Pocket019")
pocket20.Profile = sketch26
pocket20.Length = 20
pocket20.Reversed = True

# Sketch on YZ plane
sketch27 = body.newObject("Sketcher::SketchObject", "Sketch026")
sketch27.AttachmentSupport = (doc.getObject("YZ_Plane"), [""])
sketch27.MapMode = "FlatFace"
sketch27.AttachmentOffset = App.Placement(Vector(0, 0, -304), App.Rotation())
add_polygon(sketch27, [(100, 154), (65, 154), (65, 188), (100, 188)])  # lines 0-3
sketch27.addConstraint([
    Sketcher.Constraint("Horizontal", 0),
    Sketcher.Constraint("Vertical", 1),
    Sketcher.Constraint("Horizontal", 2),
    Sketcher.Constraint("Vertical", 3),
    Sketcher.Constraint("Equal", 2, 1),
    Sketcher.Constraint("DistanceX", 0, 2, 0, 1, 34.355368),
    Sketcher.Constraint("DistanceX", -1, 1, 0, 2, 65.488729),
    Sketcher.Constraint("DistanceY", -1, 1, 0, 2, 153.86779),
])
pocket21 = body.newObject("PartDesign::Pocket", "Pocket020")
pocket21.Profile = sketch27
pocket21.Length = 20
pocket21.Reversed = True

doc.recompute()
